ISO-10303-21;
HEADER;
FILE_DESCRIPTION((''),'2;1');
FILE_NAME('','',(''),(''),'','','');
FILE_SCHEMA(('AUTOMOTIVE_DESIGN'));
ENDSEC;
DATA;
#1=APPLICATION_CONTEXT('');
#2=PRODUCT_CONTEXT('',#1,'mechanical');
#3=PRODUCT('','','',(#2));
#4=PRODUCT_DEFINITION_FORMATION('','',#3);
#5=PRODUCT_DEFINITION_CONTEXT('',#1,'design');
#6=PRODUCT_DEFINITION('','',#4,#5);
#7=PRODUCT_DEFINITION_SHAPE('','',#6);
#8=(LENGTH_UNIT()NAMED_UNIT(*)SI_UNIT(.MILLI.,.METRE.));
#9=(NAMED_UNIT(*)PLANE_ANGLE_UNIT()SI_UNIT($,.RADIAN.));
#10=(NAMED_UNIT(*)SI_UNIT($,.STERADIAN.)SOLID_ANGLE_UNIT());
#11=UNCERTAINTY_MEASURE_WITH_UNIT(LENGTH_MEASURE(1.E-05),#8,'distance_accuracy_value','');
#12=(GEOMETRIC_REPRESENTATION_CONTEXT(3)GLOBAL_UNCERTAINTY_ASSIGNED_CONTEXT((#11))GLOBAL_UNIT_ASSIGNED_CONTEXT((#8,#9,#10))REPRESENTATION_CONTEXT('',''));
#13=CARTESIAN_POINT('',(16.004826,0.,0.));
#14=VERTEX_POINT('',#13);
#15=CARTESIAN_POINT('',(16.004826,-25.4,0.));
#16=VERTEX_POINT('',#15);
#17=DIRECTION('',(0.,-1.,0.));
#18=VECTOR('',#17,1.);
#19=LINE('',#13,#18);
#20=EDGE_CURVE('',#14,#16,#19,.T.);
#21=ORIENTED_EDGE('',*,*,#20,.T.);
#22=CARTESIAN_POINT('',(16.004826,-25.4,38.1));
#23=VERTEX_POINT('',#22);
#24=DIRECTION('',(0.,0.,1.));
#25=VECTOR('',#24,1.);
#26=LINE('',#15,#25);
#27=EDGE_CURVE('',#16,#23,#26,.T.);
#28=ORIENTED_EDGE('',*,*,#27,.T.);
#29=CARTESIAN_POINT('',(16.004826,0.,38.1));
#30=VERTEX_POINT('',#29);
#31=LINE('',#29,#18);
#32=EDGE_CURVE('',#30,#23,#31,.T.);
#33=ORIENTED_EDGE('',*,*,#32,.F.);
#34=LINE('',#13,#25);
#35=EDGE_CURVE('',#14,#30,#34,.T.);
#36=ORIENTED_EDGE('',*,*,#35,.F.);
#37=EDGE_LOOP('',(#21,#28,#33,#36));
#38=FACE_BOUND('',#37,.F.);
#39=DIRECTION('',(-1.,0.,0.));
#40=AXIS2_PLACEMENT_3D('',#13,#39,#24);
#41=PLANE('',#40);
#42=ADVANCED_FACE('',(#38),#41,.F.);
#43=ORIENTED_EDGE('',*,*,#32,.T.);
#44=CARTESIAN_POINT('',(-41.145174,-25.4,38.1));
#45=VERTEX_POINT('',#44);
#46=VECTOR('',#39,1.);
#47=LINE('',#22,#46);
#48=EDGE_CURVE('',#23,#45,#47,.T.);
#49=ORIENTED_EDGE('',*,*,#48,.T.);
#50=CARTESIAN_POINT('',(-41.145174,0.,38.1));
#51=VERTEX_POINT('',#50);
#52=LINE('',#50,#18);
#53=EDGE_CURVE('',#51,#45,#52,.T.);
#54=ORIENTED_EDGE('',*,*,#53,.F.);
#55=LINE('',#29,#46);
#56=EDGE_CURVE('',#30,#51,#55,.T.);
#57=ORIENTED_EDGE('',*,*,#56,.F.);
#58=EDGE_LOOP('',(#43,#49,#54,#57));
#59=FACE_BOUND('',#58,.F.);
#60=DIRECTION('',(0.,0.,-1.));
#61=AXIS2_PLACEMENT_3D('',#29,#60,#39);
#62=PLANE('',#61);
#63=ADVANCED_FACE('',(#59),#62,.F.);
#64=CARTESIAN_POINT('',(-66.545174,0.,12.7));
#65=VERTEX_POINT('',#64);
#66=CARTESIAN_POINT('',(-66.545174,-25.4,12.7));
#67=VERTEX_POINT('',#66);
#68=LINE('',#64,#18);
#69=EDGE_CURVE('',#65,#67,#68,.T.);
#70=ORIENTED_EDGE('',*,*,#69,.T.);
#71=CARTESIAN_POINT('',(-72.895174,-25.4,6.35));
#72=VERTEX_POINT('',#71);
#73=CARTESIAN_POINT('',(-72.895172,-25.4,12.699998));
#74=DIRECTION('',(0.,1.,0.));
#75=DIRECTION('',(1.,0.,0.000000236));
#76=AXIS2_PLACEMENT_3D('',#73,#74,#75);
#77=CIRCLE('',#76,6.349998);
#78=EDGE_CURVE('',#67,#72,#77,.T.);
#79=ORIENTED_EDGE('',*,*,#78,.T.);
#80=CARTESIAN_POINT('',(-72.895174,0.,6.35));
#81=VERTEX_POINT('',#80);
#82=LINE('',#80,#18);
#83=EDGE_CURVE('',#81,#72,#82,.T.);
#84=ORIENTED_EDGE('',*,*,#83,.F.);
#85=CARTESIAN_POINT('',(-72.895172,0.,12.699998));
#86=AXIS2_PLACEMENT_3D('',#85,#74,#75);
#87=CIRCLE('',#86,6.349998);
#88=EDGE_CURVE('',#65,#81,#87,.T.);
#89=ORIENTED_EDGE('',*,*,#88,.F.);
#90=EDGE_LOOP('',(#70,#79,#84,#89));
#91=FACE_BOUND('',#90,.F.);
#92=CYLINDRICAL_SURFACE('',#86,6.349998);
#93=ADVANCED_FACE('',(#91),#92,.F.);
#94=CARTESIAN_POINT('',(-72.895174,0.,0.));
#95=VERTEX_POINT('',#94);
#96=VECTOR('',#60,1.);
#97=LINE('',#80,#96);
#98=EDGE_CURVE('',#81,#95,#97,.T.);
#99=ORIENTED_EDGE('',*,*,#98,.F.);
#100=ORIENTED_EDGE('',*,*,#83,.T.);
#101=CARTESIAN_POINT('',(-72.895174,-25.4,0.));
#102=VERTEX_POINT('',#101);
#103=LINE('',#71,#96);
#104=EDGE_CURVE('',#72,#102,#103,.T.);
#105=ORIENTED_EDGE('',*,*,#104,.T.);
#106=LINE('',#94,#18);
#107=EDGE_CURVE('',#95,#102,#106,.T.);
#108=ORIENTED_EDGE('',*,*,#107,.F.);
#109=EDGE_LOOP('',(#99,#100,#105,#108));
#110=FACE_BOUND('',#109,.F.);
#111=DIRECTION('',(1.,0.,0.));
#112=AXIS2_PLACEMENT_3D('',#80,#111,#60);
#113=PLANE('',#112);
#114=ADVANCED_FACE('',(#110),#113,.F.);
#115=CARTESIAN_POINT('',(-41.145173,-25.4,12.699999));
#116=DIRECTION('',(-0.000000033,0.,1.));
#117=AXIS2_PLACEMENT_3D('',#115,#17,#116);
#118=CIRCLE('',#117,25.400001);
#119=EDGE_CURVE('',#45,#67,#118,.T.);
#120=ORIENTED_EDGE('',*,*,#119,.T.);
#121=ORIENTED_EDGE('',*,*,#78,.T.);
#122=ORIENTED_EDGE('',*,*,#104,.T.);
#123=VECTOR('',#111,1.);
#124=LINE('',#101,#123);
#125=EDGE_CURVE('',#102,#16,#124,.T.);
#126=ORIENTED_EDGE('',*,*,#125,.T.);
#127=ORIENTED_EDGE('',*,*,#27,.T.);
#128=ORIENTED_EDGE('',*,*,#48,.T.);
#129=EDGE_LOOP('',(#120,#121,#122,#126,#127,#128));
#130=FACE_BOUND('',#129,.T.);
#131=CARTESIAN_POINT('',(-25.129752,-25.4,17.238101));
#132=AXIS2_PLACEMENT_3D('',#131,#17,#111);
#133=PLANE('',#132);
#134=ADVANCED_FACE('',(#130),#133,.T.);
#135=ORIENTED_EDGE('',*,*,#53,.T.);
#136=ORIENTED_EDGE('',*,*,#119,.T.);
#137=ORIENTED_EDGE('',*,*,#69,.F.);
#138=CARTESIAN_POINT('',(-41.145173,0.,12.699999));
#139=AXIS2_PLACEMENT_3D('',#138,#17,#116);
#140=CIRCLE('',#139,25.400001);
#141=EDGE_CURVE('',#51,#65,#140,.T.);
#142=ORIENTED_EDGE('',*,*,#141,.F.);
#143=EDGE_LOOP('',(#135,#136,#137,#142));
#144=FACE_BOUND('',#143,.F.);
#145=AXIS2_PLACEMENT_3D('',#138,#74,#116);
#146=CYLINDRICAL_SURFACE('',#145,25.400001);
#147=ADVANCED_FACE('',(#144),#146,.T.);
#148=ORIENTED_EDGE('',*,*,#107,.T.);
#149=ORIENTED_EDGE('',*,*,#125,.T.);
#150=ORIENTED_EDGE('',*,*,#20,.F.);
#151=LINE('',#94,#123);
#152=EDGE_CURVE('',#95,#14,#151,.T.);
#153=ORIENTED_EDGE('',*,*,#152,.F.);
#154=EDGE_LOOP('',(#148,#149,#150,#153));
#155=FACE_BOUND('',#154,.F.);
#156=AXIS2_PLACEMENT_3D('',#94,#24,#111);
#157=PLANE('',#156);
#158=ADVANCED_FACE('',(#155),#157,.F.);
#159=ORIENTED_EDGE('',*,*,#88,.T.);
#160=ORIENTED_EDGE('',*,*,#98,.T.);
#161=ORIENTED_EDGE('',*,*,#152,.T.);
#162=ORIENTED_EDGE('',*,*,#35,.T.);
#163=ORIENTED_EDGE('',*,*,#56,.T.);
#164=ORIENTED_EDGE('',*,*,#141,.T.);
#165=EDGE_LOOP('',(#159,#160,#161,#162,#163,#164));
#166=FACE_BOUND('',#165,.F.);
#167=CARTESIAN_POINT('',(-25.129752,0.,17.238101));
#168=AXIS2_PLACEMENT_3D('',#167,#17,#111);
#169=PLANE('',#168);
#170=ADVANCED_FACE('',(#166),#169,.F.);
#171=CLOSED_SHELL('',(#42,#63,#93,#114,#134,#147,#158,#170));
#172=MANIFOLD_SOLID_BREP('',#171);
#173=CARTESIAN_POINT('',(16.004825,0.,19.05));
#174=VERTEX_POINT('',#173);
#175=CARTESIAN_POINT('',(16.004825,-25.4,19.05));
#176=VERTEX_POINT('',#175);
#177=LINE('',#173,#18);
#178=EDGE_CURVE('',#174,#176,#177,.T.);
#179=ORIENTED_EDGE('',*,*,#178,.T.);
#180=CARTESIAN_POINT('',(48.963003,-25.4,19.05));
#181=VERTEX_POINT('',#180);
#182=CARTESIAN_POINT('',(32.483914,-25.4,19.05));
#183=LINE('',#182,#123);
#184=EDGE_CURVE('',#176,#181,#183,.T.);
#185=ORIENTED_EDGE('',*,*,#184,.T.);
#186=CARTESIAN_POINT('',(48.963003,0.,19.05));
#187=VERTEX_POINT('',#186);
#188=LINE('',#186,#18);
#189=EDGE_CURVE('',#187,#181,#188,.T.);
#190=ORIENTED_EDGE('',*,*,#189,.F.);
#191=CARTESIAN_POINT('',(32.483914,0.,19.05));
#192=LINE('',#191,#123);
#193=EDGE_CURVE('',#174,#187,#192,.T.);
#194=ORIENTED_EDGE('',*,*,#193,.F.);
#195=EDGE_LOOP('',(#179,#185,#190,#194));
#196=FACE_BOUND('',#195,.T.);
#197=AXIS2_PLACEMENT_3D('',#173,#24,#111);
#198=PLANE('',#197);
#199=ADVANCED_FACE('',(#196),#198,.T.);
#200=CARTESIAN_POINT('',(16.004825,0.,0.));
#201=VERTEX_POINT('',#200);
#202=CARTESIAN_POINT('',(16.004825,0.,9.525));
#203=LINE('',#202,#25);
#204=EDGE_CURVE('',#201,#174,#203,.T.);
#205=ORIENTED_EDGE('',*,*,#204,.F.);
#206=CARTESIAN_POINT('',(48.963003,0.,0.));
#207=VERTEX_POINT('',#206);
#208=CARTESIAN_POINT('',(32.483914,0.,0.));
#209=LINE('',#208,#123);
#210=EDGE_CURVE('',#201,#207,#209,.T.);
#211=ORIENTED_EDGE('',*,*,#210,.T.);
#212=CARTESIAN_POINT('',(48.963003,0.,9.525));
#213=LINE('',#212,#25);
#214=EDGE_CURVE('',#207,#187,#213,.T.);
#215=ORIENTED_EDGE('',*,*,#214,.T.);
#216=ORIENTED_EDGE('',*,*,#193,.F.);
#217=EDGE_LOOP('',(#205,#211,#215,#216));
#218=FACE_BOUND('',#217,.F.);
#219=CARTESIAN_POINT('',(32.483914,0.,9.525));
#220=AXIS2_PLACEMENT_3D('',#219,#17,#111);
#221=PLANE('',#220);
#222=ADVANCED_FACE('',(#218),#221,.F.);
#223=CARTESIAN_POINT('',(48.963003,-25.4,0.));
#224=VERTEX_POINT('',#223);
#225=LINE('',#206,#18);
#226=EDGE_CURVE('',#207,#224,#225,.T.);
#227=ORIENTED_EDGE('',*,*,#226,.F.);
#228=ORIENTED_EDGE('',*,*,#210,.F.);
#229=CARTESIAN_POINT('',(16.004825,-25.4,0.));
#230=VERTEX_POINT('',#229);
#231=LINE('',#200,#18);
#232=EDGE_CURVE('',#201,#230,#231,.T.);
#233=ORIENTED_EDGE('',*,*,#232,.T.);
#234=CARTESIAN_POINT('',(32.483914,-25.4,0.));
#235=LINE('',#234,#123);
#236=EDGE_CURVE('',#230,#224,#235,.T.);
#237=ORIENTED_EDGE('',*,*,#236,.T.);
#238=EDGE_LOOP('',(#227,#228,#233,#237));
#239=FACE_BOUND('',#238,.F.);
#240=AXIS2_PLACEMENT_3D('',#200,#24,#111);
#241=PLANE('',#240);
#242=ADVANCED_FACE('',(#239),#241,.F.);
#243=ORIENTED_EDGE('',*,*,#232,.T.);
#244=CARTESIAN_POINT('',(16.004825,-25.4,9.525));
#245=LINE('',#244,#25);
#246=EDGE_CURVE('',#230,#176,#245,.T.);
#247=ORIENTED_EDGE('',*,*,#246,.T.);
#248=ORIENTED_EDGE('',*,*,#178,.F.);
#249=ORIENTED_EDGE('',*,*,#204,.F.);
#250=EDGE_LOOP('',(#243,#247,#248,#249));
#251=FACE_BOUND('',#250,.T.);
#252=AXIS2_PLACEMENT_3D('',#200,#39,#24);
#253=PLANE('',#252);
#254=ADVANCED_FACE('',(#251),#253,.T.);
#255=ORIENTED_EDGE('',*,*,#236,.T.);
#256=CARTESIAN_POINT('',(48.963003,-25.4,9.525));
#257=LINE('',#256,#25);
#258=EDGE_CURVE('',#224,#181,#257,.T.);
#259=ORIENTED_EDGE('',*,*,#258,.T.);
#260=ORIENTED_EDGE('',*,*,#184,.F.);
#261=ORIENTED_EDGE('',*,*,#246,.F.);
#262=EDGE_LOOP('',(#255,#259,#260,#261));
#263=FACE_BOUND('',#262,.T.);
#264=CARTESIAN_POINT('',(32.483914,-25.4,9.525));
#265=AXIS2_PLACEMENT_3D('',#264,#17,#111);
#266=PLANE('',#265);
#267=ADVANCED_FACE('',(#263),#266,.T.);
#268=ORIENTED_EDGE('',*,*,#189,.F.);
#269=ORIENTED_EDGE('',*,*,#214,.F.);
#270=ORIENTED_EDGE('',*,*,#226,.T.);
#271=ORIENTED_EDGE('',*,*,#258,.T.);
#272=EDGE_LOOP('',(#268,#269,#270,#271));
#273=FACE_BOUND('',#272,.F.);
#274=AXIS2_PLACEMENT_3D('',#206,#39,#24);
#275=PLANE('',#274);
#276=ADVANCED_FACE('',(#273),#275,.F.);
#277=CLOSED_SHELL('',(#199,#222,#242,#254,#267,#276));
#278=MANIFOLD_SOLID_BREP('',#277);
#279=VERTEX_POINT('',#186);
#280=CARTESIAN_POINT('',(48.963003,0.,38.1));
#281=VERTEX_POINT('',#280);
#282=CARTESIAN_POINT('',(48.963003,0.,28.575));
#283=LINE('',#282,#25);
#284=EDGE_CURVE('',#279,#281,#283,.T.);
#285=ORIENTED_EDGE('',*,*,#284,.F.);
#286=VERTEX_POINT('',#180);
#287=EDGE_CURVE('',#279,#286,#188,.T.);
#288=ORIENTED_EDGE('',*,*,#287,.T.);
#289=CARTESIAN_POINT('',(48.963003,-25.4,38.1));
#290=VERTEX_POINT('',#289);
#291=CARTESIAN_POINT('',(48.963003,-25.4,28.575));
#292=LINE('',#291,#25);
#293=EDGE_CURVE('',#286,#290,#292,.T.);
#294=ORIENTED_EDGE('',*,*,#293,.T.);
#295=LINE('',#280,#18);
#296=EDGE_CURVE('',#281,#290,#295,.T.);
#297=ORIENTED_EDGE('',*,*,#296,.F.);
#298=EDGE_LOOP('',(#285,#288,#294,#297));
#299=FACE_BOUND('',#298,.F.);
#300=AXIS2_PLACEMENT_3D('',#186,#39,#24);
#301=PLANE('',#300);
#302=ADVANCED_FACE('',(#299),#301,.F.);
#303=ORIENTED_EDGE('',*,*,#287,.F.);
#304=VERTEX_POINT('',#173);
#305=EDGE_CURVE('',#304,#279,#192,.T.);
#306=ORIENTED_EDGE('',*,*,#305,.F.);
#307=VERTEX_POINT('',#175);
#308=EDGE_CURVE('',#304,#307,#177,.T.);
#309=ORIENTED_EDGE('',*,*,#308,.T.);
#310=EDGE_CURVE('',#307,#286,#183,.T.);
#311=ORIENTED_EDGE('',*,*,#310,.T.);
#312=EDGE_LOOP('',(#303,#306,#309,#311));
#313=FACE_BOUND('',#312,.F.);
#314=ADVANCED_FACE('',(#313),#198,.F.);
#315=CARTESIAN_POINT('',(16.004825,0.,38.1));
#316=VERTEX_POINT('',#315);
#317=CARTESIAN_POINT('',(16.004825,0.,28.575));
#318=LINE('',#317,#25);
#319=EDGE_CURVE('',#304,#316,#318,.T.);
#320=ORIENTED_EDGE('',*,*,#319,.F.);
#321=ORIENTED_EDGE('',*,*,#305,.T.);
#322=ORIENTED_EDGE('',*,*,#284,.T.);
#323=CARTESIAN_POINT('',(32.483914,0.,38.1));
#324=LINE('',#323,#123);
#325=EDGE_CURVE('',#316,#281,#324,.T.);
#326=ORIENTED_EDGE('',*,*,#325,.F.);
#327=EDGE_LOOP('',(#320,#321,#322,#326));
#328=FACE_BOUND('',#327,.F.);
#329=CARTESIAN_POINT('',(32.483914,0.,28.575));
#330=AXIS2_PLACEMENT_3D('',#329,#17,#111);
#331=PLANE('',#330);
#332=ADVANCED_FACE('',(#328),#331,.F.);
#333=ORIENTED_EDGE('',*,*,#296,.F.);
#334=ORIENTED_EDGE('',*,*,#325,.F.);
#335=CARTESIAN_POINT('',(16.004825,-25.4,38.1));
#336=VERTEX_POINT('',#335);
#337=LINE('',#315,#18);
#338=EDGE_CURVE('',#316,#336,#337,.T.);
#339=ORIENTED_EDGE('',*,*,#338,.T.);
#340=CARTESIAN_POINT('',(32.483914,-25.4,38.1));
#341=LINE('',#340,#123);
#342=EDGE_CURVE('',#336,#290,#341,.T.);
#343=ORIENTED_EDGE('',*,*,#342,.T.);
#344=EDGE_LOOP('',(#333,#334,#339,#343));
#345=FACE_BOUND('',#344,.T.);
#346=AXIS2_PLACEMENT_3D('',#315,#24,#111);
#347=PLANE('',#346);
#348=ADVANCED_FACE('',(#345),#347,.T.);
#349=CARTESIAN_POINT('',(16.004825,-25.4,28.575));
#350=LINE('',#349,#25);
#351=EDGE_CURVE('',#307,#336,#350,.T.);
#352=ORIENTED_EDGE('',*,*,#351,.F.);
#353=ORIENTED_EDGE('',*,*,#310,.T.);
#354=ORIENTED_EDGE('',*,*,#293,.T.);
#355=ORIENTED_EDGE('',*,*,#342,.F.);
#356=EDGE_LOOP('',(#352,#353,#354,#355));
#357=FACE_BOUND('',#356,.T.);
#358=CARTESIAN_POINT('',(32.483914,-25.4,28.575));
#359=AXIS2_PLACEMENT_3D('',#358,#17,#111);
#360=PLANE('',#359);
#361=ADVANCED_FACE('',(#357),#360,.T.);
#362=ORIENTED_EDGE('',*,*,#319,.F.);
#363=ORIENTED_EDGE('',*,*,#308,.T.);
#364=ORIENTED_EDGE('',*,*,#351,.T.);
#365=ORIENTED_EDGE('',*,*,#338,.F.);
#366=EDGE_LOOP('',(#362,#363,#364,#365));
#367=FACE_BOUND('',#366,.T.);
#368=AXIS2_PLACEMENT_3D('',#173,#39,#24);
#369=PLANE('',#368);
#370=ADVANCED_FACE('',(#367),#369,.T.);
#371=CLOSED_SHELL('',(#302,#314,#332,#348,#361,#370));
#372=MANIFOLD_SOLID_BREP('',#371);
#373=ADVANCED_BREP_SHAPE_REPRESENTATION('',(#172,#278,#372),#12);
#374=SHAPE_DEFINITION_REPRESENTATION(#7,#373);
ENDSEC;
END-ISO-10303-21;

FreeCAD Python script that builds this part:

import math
import FreeCAD as App
import Part
import Sketcher
from FreeCAD import Vector
Q = App.Units.Quantity


def add_polygon(sketch, points):
    """Adds a closed chain of lines whose ends are joined by coincident constraints."""
    first, n = sketch.GeometryCount, len(points)
    for a, b in zip(points, points[1:] + points[:1]):
        sketch.addGeometry(Part.LineSegment(App.Vector(*a, 0), App.Vector(*b, 0)), False)
    for i in range(n):
        sketch.addConstraint(Sketcher.Constraint("Coincident", first + i, 2, first + (i + 1) % n, 1))

doc = App.newDocument("Part")
params = doc.addObject("Spreadsheet::Sheet", "Params")
for row, (alias, value) in enumerate([
    ("sketch1_radius", "1 in"),
    ("sketch1_radius2", "0.2499999 in"),
    ("sketch1_width", "3.5 in"),
    ("sketch1_height", "1.5 in"),
    ("sketch1_width2", "2.25 in"),
    ("pad1_length", "1 in"),
    ("sketch2_height", "0.75 in"),
    ("pad2_length", "1 in"),
    ("sketch3_height", "0.75 in"),
    ("pad3_length", "1 in"),
], start=1):
    params.set(f"A{row}", alias)
    params.set(f"B{row}", "=" + value)
    params.setAlias(f"B{row}", alias)

body = doc.addObject("PartDesign::Body", "Body")

sketch1 = body.newObject("Sketcher::SketchObject", "Sketch")
sketch1.AttachmentSupport = (doc.getObject("XZ_Plane"), [""])
sketch1.MapMode = "FlatFace"
sketch1.addGeometry([
    Part.LineSegment(Vector(-73, 0, 0), Vector(16, 0, 0)),
    Part.LineSegment(Vector(16, 0, 0), Vector(16, 38, 0)),
    Part.LineSegment(Vector(16, 38, 0), Vector(-41, 38, 0)),
    Part.ArcOfCircle(Part.Circle(Vector(-41, 13, 0), Vector(0, 0, 1), 25), math.radians(90), math.radians(180)),
    Part.ArcOfCircle(Part.Circle(Vector(-73, 13, 0), Vector(0, 0, 1), 6), math.radians(-90), math.radians(0)),
    Part.LineSegment(Vector(-73, 6, 0), Vector(-73, 0, 0)),
], False)
sketch1.addConstraint([
    Sketcher.Constraint("Coincident", 0, 2, 1, 1),
    Sketcher.Constraint("Coincident", 1, 2, 2, 1),
    Sketcher.Constraint("Tangent", 2, 2, 3, 1),
    Sketcher.Constraint("Tangent", 3, 2, 4, 2),
    Sketcher.Constraint("Coincident", 4, 1, 5, 1),
    Sketcher.Constraint("Coincident", 5, 2, 0, 1),
    Sketcher.Constraint("Horizontal", 0),
    Sketcher.Constraint("Vertical", 1),
    Sketcher.Constraint("Horizontal", 2),
    Sketcher.Constraint("Vertical", 5),
    Sketcher.Constraint("PointOnObject", 0, 2, -1),
    Sketcher.Constraint("Horizontal", 3, 3, 4, 3),
    Sketcher.Constraint("Radius", 3, Q("1 in")),
    Sketcher.Constraint("Radius", 4, Q("0.2499999 in")),
    Sketcher.Constraint("DistanceX", 0, 1, 0, 2, Q("3.5 in")),
    Sketcher.Constraint("DistanceY", 1, 1, 1, 2, Q("1.5 in")),
    Sketcher.Constraint("DistanceX", 2, 2, 2, 1, Q("2.25 in")),
    Sketcher.Constraint("DistanceX", 3, 3, -1, 1, Q("41.145173 mm")),
])
sketch1.setExpression("Constraints[12]", "Params.sketch1_radius")
sketch1.setExpression("Constraints[13]", "Params.sketch1_radius2")
sketch1.setExpression("Constraints[14]", "Params.sketch1_width")
sketch1.setExpression("Constraints[15]", "Params.sketch1_height")
sketch1.setExpression("Constraints[16]", "Params.sketch1_width2")
pad1 = body.newObject("PartDesign::Pad", "Pad")
pad1.Profile = sketch1
pad1.setExpression("Length", "Params.pad1_length")
body2 = doc.addObject("PartDesign::Body", "Body001")

sketch2 = body2.newObject("Sketcher::SketchObject", "Sketch001")
sketch2.AttachmentSupport = (doc.getObject("XZ_Plane001"), [""])
sketch2.MapMode = "FlatFace"
add_polygon(sketch2, [(16, 38), (16, 19), (49, 19), (49, 38)])
sketch2.addConstraint([
    Sketcher.Constraint("Vertical", 0),
    Sketcher.Constraint("Horizontal", 1),
    Sketcher.Constraint("Vertical", 2),
    Sketcher.Constraint("Horizontal", 3),
    Sketcher.Constraint("DistanceY", 0, 2, 0, 1, Q("0.75 in")),
    Sketcher.Constraint("DistanceY", -1, 1, 2, 2, Q("1.5 in")),
    Sketcher.Constraint("DistanceX", 1, 1, 1, 2, Q("32.958177 mm")),
    Sketcher.Constraint("DistanceX", -1, 1, 0, 2, Q("16.004825 mm")),
])
sketch2.setExpression("Constraints[8]", "Params.sketch2_height")
pad2 = body2.newObject("PartDesign::Pad", "Pad001")
pad2.Profile = sketch2
pad2.setExpression("Length", "Params.pad2_length")
body3 = doc.addObject("PartDesign::Body", "Body002")

sketch3 = body3.newObject("Sketcher::SketchObject", "Sketch002")
sketch3.AttachmentSupport = (doc.getObject("XZ_Plane002"), [""])
sketch3.MapMode = "FlatFace"
add_polygon(sketch3, [(16, 19), (16, 0), (49, 0), (49, 19)])
sketch3.addConstraint([
    Sketcher.Constraint("Vertical", 0),
    Sketcher.Constraint("Horizontal", 1),
    Sketcher.Constraint("Vertical", 2),
    Sketcher.Constraint("Horizontal", 3),
    Sketcher.Constraint("PointOnObject", 0, 2, -1),
    Sketcher.Constraint("DistanceY", 0, 2, 0, 1, Q("0.75 in")),
    Sketcher.Constraint("DistanceX", 1, 1, 1, 2, Q("32.958177 mm")),
    Sketcher.Constraint("DistanceX", -1, 1, 0, 2, Q("16.004825 mm")),
])
sketch3.setExpression("Constraints[9]", "Params.sketch3_height")
pad3 = body3.newObject("PartDesign::Pad", "Pad002")
pad3.Profile = sketch3
pad3.setExpression("Length", "Params.pad3_length")

doc.recompute()
